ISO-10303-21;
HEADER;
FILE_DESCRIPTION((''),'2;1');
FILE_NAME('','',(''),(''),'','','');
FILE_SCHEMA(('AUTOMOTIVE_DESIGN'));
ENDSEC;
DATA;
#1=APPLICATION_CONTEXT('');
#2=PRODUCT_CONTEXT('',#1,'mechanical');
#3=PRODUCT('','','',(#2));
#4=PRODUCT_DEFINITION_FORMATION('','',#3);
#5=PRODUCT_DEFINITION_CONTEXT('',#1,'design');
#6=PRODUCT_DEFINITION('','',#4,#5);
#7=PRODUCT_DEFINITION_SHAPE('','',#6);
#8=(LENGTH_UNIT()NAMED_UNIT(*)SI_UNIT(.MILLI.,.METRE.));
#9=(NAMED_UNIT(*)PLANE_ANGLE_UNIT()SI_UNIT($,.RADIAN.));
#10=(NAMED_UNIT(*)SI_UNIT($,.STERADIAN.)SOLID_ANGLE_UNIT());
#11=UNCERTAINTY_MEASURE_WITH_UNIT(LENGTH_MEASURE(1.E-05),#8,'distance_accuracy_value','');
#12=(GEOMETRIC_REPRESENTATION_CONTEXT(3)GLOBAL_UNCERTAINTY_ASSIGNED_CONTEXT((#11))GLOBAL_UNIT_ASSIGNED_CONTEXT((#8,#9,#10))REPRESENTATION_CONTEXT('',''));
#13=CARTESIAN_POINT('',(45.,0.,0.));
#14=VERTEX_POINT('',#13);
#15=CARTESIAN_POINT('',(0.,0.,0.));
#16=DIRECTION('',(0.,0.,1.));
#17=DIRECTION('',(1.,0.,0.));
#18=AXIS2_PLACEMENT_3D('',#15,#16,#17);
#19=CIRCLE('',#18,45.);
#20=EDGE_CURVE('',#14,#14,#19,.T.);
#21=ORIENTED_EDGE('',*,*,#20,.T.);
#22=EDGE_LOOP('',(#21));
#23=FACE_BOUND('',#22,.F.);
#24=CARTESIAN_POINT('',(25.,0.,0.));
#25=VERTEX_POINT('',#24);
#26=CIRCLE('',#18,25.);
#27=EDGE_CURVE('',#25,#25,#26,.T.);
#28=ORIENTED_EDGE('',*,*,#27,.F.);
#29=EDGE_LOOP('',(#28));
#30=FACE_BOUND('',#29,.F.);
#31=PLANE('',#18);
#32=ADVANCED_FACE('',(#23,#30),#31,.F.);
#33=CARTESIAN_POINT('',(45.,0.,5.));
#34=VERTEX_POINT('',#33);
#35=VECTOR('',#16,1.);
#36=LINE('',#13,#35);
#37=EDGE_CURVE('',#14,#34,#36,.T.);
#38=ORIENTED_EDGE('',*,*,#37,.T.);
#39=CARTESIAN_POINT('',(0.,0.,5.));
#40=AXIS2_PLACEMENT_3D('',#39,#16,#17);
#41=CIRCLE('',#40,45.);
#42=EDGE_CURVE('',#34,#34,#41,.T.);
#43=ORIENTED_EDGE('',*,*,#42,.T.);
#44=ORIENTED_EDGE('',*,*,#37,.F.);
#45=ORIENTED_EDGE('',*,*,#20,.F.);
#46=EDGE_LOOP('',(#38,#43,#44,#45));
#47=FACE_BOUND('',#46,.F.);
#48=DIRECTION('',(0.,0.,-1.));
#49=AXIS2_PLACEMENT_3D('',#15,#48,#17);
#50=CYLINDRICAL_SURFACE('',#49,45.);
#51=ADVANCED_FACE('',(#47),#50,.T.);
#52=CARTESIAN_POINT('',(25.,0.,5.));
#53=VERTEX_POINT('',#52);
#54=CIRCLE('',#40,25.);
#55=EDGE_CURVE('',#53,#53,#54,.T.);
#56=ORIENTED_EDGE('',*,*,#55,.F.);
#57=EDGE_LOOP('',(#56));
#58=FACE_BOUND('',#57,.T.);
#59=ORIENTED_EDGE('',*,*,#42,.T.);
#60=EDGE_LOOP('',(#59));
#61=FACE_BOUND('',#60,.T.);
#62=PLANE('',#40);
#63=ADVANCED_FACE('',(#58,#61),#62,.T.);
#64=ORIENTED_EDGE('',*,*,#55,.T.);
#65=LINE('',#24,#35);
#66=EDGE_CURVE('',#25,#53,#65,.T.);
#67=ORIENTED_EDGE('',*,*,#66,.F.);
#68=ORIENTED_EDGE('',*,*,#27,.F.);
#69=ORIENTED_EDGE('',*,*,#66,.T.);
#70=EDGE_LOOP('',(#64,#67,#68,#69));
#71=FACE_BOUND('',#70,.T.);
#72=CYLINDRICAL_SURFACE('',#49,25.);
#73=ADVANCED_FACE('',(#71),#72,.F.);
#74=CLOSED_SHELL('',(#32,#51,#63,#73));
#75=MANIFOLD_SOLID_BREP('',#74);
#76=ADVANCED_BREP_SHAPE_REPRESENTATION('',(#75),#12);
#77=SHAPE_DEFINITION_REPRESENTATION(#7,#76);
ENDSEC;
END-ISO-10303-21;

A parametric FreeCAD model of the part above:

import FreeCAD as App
import Part
import Sketcher
from FreeCAD import Vector

doc = App.newDocument("Part")
params = doc.addObject("Spreadsheet::Sheet", "Params")
for row, (alias, value) in enumerate([
    ("sketch1_diameter", "90 mm"),
    ("sketch1_diameter2", "50 mm"),
    ("pad1_length", "5 mm"),
], start=1):
    params.set(f"A{row}", alias)
    params.set(f"B{row}", "=" + value)
    params.setAlias(f"B{row}", alias)

body = doc.addObject("PartDesign::Body", "Body")

sketch1 = doc.addObject("Sketcher::SketchObject", "Sketch")
body.addObject(sketch1)
sketch1.AttachmentSupport = (doc.XY_Plane, [""])
sketch1.MapMode = "FlatFace"
sketch1.addGeometry([
    Part.Circle(Vector(0, 0, 0), Vector(0, 0, 1), 45),
    Part.Circle(Vector(0, 0, 0), Vector(0, 0, 1), 25),
], False)
sketch1.addConstraint([
    Sketcher.Constraint("Coincident", 0, 3, -1, 1),
    Sketcher.Constraint("Coincident", 1, 3, -1, 1),
    Sketcher.Constraint("Diameter", 0, 90.0),
    Sketcher.Constraint("Diameter", 1, 50.0),
])
sketch1.setExpression("Constraints[2]", "Params.sketch1_diameter")
sketch1.setExpression("Constraints[3]", "Params.sketch1_diameter2")
pad1 = doc.addObject("PartDesign::Pad", "Pad")
body.addObject(pad1)
pad1.Profile = sketch1
pad1.setExpression("Length", "Params.pad1_length")

doc.recompute()
